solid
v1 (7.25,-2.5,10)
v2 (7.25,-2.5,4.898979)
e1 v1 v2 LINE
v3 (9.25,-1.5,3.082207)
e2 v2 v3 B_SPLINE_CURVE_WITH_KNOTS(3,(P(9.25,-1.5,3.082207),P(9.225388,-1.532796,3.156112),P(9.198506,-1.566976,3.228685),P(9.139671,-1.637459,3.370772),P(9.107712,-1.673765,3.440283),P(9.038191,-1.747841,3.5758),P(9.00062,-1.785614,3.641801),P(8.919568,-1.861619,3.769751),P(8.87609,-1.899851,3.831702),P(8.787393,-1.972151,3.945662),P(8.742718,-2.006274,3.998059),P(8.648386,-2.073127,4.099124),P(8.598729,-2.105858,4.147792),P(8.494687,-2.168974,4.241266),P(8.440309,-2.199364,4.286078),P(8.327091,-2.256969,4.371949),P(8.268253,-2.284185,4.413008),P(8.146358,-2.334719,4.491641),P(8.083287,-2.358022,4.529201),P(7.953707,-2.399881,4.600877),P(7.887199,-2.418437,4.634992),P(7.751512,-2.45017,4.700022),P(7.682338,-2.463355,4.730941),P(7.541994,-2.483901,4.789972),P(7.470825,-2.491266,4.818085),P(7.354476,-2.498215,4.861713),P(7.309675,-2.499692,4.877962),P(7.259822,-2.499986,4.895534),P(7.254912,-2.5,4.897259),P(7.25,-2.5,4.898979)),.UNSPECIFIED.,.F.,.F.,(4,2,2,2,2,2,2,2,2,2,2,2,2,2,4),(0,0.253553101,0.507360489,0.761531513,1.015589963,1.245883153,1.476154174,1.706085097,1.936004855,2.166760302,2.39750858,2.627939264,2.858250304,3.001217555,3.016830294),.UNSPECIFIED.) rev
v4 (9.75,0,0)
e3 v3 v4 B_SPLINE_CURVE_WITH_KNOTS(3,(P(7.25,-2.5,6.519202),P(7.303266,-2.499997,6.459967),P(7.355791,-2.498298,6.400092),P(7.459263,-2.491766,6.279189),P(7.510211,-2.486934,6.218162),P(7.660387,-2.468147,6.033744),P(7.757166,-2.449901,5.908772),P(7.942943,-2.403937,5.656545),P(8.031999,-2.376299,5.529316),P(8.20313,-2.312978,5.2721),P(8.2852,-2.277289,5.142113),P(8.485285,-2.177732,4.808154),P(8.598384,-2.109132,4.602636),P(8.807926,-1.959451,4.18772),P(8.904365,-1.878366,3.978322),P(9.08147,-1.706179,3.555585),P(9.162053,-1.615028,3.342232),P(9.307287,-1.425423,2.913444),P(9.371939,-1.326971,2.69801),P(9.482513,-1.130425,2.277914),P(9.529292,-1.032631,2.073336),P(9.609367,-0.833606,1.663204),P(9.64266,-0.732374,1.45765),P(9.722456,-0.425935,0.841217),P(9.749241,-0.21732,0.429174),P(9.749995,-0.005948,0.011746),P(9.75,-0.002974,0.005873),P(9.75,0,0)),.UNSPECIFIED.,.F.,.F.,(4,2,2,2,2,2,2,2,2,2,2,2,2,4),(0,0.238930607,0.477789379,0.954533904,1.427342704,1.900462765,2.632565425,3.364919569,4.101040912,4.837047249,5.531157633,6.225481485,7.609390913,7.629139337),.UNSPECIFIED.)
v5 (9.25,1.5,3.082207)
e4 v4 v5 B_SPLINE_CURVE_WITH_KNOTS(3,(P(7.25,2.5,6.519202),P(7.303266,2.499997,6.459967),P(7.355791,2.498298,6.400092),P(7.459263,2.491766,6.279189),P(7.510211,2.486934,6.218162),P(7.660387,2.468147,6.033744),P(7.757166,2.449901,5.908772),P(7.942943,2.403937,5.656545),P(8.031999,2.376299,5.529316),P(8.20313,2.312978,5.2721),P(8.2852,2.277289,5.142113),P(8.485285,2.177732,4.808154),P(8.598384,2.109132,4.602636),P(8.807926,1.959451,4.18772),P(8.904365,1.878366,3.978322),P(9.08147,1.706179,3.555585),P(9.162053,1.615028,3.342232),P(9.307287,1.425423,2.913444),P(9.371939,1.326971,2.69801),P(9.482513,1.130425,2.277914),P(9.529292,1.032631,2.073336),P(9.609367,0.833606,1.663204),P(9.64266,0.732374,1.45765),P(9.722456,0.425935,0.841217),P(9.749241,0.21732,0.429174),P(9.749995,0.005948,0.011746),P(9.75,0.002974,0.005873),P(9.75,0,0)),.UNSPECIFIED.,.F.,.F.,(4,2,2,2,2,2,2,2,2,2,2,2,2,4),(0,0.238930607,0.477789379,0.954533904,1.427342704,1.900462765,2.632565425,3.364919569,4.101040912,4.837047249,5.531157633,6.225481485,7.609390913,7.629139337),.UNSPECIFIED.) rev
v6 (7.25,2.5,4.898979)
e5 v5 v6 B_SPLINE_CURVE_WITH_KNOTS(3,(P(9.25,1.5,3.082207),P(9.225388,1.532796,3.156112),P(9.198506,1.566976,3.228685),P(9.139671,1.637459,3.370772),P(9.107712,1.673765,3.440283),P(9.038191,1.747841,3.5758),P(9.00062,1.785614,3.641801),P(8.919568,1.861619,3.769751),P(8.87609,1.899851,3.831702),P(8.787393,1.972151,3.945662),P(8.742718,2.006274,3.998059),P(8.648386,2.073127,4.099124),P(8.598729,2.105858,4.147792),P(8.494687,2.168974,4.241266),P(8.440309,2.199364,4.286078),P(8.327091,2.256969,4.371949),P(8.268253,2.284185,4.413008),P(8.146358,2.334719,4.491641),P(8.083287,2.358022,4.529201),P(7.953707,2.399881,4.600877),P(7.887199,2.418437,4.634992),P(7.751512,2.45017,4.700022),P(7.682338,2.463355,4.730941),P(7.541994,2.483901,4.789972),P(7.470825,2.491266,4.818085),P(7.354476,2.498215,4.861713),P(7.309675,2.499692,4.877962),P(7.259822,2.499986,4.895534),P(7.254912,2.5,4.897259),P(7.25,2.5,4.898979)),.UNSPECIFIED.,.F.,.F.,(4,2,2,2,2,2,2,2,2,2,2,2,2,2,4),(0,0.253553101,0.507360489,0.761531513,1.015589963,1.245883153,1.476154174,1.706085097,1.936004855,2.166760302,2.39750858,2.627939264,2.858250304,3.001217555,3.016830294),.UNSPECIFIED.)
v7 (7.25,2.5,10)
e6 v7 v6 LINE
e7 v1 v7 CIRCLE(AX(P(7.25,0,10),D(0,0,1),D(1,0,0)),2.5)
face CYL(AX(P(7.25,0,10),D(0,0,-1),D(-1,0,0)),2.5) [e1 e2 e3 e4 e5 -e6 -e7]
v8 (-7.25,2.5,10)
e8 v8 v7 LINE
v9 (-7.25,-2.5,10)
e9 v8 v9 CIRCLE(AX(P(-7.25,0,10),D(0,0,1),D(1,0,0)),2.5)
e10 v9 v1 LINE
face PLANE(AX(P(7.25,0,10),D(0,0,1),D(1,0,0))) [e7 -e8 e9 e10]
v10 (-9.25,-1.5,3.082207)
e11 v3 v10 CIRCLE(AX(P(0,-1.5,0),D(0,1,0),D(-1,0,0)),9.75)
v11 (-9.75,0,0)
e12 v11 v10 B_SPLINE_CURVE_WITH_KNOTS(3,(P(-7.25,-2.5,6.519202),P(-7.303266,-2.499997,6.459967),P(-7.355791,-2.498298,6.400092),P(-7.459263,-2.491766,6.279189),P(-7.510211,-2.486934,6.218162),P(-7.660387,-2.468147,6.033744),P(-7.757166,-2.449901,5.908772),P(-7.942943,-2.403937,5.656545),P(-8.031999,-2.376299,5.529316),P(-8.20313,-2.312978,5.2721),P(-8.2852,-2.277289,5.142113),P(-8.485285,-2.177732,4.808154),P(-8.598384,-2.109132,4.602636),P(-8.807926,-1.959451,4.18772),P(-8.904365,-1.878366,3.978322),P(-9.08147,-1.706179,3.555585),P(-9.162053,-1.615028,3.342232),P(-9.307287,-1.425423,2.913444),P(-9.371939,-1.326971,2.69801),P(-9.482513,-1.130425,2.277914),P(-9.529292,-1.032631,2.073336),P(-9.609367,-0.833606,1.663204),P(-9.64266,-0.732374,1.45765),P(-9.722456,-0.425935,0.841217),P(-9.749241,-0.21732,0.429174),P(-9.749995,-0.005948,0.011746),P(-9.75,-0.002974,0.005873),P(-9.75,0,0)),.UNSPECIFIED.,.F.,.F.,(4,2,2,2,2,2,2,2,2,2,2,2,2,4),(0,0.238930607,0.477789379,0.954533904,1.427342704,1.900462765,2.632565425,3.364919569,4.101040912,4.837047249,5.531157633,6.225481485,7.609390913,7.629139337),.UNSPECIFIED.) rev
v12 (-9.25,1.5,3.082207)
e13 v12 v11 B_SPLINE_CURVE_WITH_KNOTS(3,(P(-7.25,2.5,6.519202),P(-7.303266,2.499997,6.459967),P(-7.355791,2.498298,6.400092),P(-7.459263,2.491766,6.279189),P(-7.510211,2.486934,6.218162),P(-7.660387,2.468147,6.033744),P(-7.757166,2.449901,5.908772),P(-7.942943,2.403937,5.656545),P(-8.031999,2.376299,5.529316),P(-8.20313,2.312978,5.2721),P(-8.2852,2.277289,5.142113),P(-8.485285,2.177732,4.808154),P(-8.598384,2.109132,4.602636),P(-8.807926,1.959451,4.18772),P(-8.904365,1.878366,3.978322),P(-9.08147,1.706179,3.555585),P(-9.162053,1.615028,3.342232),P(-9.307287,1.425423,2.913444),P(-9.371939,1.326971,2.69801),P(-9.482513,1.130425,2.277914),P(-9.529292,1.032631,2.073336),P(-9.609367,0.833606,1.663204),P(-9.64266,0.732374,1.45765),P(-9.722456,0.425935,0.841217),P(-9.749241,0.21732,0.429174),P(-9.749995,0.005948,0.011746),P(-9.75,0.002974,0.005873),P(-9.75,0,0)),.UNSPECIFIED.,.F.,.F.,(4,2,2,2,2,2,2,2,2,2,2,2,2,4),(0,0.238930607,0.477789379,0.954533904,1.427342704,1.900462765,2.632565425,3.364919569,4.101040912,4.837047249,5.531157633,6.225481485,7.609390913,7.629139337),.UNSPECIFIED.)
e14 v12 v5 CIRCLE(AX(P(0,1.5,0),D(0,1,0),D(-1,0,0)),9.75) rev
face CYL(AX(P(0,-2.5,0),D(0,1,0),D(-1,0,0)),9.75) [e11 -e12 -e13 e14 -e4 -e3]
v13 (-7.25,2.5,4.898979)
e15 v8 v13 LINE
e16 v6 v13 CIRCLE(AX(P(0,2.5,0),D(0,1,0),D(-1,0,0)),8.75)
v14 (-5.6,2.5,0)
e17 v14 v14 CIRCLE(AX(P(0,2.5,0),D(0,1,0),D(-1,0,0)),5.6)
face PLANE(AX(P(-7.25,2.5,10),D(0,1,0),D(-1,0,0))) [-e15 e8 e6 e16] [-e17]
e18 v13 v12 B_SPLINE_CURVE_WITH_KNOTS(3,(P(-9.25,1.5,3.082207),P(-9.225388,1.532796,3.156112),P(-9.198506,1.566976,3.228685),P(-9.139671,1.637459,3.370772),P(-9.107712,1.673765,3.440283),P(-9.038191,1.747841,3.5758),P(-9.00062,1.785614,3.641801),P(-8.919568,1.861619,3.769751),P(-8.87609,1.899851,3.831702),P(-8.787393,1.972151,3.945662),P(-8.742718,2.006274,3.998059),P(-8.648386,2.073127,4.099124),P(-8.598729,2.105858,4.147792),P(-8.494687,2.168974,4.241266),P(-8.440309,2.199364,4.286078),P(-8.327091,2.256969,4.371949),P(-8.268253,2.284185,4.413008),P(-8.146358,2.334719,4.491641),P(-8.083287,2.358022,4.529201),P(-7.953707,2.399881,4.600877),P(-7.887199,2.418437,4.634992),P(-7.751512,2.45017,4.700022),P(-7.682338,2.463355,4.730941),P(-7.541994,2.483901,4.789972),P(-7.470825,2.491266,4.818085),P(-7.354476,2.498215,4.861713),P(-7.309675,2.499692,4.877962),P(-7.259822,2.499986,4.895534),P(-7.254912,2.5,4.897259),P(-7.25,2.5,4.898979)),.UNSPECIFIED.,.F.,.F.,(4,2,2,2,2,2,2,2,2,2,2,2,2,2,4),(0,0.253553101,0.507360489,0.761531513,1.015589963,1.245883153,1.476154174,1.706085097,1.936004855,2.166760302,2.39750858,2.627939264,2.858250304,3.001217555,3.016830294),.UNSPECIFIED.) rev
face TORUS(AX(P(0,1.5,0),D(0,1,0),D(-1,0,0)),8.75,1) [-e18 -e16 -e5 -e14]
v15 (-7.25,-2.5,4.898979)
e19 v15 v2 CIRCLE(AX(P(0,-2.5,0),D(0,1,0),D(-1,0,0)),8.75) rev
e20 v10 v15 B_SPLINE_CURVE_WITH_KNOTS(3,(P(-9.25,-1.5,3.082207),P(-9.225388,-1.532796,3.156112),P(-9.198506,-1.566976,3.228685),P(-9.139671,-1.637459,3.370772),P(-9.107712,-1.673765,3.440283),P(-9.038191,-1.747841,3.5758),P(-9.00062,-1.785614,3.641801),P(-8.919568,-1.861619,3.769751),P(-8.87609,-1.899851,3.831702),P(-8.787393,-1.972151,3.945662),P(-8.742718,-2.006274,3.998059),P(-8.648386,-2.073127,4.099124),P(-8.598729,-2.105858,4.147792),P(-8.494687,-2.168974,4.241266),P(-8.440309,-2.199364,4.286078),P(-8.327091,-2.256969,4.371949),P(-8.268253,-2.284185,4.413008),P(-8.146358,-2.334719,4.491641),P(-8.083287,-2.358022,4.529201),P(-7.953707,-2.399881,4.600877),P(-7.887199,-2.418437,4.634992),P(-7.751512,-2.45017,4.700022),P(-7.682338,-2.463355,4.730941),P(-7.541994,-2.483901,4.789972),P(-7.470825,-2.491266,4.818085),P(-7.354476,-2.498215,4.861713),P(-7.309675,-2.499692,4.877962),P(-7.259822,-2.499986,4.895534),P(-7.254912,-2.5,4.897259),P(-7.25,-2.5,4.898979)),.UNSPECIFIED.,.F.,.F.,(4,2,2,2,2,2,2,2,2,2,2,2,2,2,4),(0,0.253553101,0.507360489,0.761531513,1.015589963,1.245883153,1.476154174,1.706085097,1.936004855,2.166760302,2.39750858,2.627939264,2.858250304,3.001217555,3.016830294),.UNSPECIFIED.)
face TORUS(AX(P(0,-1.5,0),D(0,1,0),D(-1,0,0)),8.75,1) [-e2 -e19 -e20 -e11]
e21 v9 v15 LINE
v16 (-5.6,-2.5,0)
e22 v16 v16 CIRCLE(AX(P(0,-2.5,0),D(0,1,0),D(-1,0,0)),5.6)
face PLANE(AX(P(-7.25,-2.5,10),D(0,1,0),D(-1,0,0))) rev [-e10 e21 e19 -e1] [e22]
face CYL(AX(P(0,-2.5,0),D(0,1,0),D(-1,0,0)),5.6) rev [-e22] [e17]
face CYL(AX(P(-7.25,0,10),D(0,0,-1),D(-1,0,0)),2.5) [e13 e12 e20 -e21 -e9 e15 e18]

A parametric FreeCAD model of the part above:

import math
import FreeCAD as App
import Part
import Sketcher
from FreeCAD import Vector


def edges_at(feature, points):
    """Names of the edges that pass closest to the given points."""
    edges = feature.Shape.Edges
    near = lambda p: min(range(len(edges)), key=lambda i: edges[i].distToShape(Part.Vertex(*p))[0])
    return sorted({f"Edge{near(p) + 1}" for p in points})

doc = App.newDocument("Part")
params = doc.addObject("Spreadsheet::Sheet", "Params")
for row, (alias, value) in enumerate([
    ("sketch1_radius", "2.5 mm"),
    ("sketch1_width", "14.5 mm"),
    ("pad1_length", "10 mm"),
    ("sketch2_diameter", "19.5 mm"),
    ("pad2_length", "5 mm"),
    ("fillet_radius", "1 mm"),
    ("sketch3_diameter", "11.2 mm"),
    ("pocket1_length", "5 mm"),
], start=1):
    params.set(f"A{row}", alias)
    params.set(f"B{row}", "=" + value)
    params.setAlias(f"B{row}", alias)

body = doc.addObject("PartDesign::Body", "Body")

sketch1 = doc.addObject("Sketcher::SketchObject", "Sketch")
body.addObject(sketch1)
sketch1.AttachmentSupport = (doc.XY_Plane, [""])
sketch1.MapMode = "FlatFace"
sketch1.addGeometry(Part.LineSegment(Vector(7.25, 2.5, 0), Vector(-7.25, 2.5, 0)), False)
sketch1.addGeometry(Part.ArcOfCircle(Part.Circle(Vector(-7.25, 0, 0), Vector(0, 0, 1), 2.5), math.radians(90), math.radians(270)), False)
sketch1.addGeometry(Part.LineSegment(Vector(-7.25, -2.5, 0), Vector(7.25, -2.5, 0)), False)
sketch1.addGeometry(Part.ArcOfCircle(Part.Circle(Vector(7.25, 0, 0), Vector(0, 0, 1), 2.5), math.radians(-90), math.radians(90)), False)
sketch1.addConstraint(Sketcher.Constraint("Tangent", 0, 2, 1, 1))
sketch1.addConstraint(Sketcher.Constraint("Tangent", 1, 2, 2, 1))
sketch1.addConstraint(Sketcher.Constraint("Tangent", 2, 2, 3, 1))
sketch1.addConstraint(Sketcher.Constraint("Tangent", 3, 2, 0, 1))
sketch1.addConstraint(Sketcher.Constraint("Horizontal", 0))
sketch1.addConstraint(Sketcher.Constraint("Horizontal", 2))
sketch1.addConstraint(Sketcher.Constraint("Symmetric", 1, 3, 3, 3, -1, 1))
sketch1.addConstraint(Sketcher.Constraint("Radius", 1, 2.5))
sketch1.addConstraint(Sketcher.Constraint("DistanceX", 0, 2, 0, 1, 14.5))
sketch1.setExpression("Constraints[7]", "Params.sketch1_radius")
sketch1.setExpression("Constraints[8]", "Params.sketch1_width")
pad1 = doc.addObject("PartDesign::Pad", "Pad")
body.addObject(pad1)
pad1.Profile = sketch1
pad1.setExpression("Length", "Params.pad1_length")

sketch2 = doc.addObject("Sketcher::SketchObject", "Sketch001")
body.addObject(sketch2)
sketch2.AttachmentSupport = (doc.XZ_Plane, [""])
sketch2.MapMode = "FlatFace"
sketch2.AttachmentOffset = App.Placement(Vector(0, 0, -2.5), App.Rotation())
sketch2.addGeometry(Part.Circle(Vector(0, 0, 0), Vector(0, 0, 1), 9.75), False)
sketch2.addConstraint(Sketcher.Constraint("Coincident", 0, 3, -1, 1))
sketch2.addConstraint(Sketcher.Constraint("Diameter", 0, 19.5))
sketch2.setExpression("Constraints[1]", "Params.sketch2_diameter")
pad2 = doc.addObject("PartDesign::Pad", "Pad001")
body.addObject(pad2)
pad2.Profile = sketch2
pad2.setExpression("Length", "Params.pad2_length")
doc.recompute()

fillet = doc.addObject("PartDesign::Fillet", "Fillet")
body.addObject(fillet)
fillet.Base = (pad2, edges_at(pad2, [(0, -2.5, -9.75), (0, 2.5, -9.75)]))
fillet.setExpression("Radius", "Params.fillet_radius")

sketch3 = doc.addObject("Sketcher::SketchObject", "Sketch002")
body.addObject(sketch3)
sketch3.AttachmentSupport = (doc.XZ_Plane, [""])
sketch3.MapMode = "FlatFace"
sketch3.AttachmentOffset = App.Placement(Vector(0, 0, -2.5), App.Rotation())
sketch3.addGeometry(Part.Circle(Vector(0, 0, 0), Vector(0, 0, 1), 5.6), False)
sketch3.addConstraint(Sketcher.Constraint("Coincident", 0, 3, -1, 1))
sketch3.addConstraint(Sketcher.Constraint("Diameter", 0, 11.2))
sketch3.setExpression("Constraints[1]", "Params.sketch3_diameter")
pocket1 = doc.addObject("PartDesign::Pocket", "Pocket")
body.addObject(pocket1)
pocket1.Profile = sketch3
pocket1.setExpression("Length", "Params.pocket1_length")
pocket1.Reversed = True

doc.recompute()
